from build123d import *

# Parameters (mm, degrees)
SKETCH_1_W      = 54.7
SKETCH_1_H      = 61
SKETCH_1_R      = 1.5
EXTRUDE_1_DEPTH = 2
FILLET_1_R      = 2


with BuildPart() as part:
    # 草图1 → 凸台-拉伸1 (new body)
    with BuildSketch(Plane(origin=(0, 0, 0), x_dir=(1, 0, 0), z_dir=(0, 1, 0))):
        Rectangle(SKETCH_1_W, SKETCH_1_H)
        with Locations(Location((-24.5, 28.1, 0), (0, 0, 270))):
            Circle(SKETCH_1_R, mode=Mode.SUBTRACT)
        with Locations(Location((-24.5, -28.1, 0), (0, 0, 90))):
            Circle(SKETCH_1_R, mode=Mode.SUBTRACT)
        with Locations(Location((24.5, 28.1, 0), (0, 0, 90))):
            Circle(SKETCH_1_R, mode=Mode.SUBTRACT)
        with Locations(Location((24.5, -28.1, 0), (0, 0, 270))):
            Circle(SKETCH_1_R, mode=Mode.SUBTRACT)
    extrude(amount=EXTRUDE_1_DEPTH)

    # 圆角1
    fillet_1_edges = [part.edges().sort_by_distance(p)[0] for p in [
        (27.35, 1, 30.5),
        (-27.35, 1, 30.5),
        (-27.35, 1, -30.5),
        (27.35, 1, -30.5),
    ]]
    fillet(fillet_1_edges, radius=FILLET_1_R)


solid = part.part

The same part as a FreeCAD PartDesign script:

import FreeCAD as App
import Part
import Sketcher
Q = App.Units.Quantity


def edges_at(feature, points):
    """Names of the edges that pass closest to the given points."""
    edges = feature.Shape.Edges
    near = lambda p: min(range(len(edges)), key=lambda i: edges[i].distToShape(Part.Vertex(*p))[0])
    return sorted({f"Edge{near(p) + 1}" for p in points})

doc = App.newDocument("Part")
body = doc.addObject("PartDesign::Body", "Body")

# Sketch on XZ plane
sketch1 = body.newObject("Sketcher::SketchObject", "Sketch")
sketch1.AttachmentSupport = (doc.getObject("XZ_Plane"), [""])
sketch1.MapMode = "FlatFace"
sketch1.addGeometry([
    Part.LineSegment(App.Vector(-27.4, -30.5, 0), App.Vector(-27.4, 30.5, 0)),  # 0
    Part.LineSegment(App.Vector(-27.4, 30.5, 0), App.Vector(27.4, 30.5, 0)),  # 1
    Part.LineSegment(App.Vector(27.4, 30.5, 0), App.Vector(27.4, -30.5, 0)),  # 2
    Part.LineSegment(App.Vector(27.4, -30.5, 0), App.Vector(-27.4, -30.5, 0)),  # 3
    Part.Circle(App.Vector(-24.5, 28.1, 0), App.Vector(0, 0, 1), 1.5),  # 4
    Part.Circle(App.Vector(24.5, 28.1, 0), App.Vector(0, 0, 1), 1.5),  # 5
    Part.Circle(App.Vector(-24.5, -28.1, 0), App.Vector(0, 0, 1), 1.5),  # 6
    Part.Circle(App.Vector(24.5, -28.1, 0), App.Vector(0, 0, 1), 1.5),  # 7
], False)
sketch1.addConstraint([
    Sketcher.Constraint("Coincident", 0, 2, 1, 1),
    Sketcher.Constraint("Coincident", 1, 2, 2, 1),
    Sketcher.Constraint("Coincident", 2, 2, 3, 1),
    Sketcher.Constraint("Coincident", 3, 2, 0, 1),
    Sketcher.Constraint("Vertical", 0),
    Sketcher.Constraint("Horizontal", 1),
    Sketcher.Constraint("Vertical", 2),
    Sketcher.Constraint("Horizontal", 3),
    Sketcher.Constraint("Equal", 4, 5),
    Sketcher.Constraint("Equal", 5, 6),
    Sketcher.Constraint("Equal", 6, 7),
    Sketcher.Constraint("Symmetric", 5, 3, 6, 3, -1, 1),
    Sketcher.Constraint("Symmetric", 4, 3, 7, 3, -1, 1),
    Sketcher.Constraint("Symmetric", 0, 2, 2, 2, -1, 1),
    Sketcher.Constraint("Symmetric", 4, 3, 5, 3, -2),
    Sketcher.Constraint("Diameter", 4, Q("3 mm")),
    Sketcher.Constraint("DistanceY", 0, 1, 0, 2, Q("61 mm")),
    Sketcher.Constraint("DistanceX", 1, 1, 1, 2, Q("54.7 mm")),
    Sketcher.Constraint("DistanceX", 4, 3, 5, 3, Q("49 mm")),
    Sketcher.Constraint("DistanceY", -1, 1, 4, 3, Q("28.1 mm")),
])
pad1 = body.newObject("PartDesign::Pad", "Pad")
pad1.Profile = sketch1
pad1.Length = 2
pad1.Reversed = True
doc.recompute()

fillet = body.newObject("PartDesign::Fillet", "Fillet")
fillet.Base = (pad1, edges_at(pad1, [
    (27.35, 1, 30.5),
    (-27.35, 1, 30.5),
    (-27.35, 1, -30.5),
    (27.35, 1, -30.5),
]))
fillet.Radius = 2

doc.recompute()
